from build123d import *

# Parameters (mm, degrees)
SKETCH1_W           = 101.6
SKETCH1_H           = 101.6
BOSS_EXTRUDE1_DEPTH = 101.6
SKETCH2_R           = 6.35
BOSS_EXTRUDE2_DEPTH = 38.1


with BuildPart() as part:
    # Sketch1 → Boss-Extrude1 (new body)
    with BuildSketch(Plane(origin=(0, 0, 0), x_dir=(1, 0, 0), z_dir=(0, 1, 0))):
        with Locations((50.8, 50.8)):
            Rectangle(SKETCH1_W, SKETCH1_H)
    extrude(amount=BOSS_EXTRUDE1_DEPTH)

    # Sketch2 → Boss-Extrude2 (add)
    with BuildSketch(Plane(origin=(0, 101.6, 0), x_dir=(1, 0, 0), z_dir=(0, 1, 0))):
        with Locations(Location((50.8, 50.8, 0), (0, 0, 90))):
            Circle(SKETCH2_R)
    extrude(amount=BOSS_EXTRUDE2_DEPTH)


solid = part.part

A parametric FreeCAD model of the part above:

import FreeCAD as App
import Part
import Sketcher

V = App.Vector
Q = App.Units.Quantity


def add_polygon(sketch, points):
    """Adds a closed chain of lines whose ends are joined by coincident constraints."""
    first, n = sketch.GeometryCount, len(points)
    for a, b in zip(points, points[1:] + points[:1]):
        sketch.addGeometry(Part.LineSegment(App.Vector(*a, 0), App.Vector(*b, 0)), False)
    for i in range(n):
        sketch.addConstraint(Sketcher.Constraint("Coincident", first + i, 2, first + (i + 1) % n, 1))

doc = App.newDocument("Part")
params = doc.addObject("Spreadsheet::Sheet", "Params")
for row, (alias, value) in enumerate([
    ("sketch1_width", "4 in"),
    ("pad1_length", "4 in"),
    ("sketch2_diameter", "0.5 in"),
    ("pad2_length", "1.5 in"),
], start=1):
    params.set(f"A{row}", alias)
    params.set(f"B{row}", "=" + value)
    params.setAlias(f"B{row}", alias)

body = doc.addObject("PartDesign::Body", "Body")

sketch1 = body.newObject("Sketcher::SketchObject", "Sketch")
sketch1.AttachmentSupport = (doc.getObject("XZ_Plane"), [""])
sketch1.MapMode = "FlatFace"
add_polygon(sketch1, [(0, -102), (0, 0), (102, 0), (102, -102)])
sketch1.addConstraint(Sketcher.Constraint("Vertical", 0))
sketch1.addConstraint(Sketcher.Constraint("Horizontal", 1))
sketch1.addConstraint(Sketcher.Constraint("Vertical", 2))
sketch1.addConstraint(Sketcher.Constraint("Horizontal", 3))
sketch1.addConstraint(Sketcher.Constraint("Coincident", 0, 2, -1, 1))
sketch1.addConstraint(Sketcher.Constraint("Equal", 3, 0))
sketch1.addConstraint(Sketcher.Constraint("DistanceX", 1, 1, 1, 2, Q("4 in")))
sketch1.setExpression("Constraints[10]", "Params.sketch1_width")
pad1 = body.newObject("PartDesign::Pad", "Pad")
pad1.Profile = sketch1
pad1.setExpression("Length", "Params.pad1_length")
pad1.Reversed = True

sketch2 = body.newObject("Sketcher::SketchObject", "Sketch001")
sketch2.AttachmentSupport = (doc.getObject("XZ_Plane"), [""])
sketch2.MapMode = "FlatFace"
sketch2.AttachmentOffset = App.Placement(V(0, 0, -4 * 25.4), App.Rotation())
sketch2.addGeometry(Part.Circle(V(51, -51, 0), V(0, 0, 1), 6), False)
sketch2.addConstraint(Sketcher.Constraint("Diameter", 0, Q("0.5 in")))
sketch2.addConstraint(Sketcher.Constraint("DistanceX", -1, 1, 0, 3, Q("2 in")))
sketch2.addConstraint(Sketcher.Constraint("DistanceY", 0, 3, -1, 1, Q("2 in")))
sketch2.setExpression("Constraints[0]", "Params.sketch2_diameter")
pad2 = body.newObject("PartDesign::Pad", "Pad001")
pad2.Profile = sketch2
pad2.setExpression("Length", "Params.pad2_length")
pad2.Reversed = True

doc.recompute()
